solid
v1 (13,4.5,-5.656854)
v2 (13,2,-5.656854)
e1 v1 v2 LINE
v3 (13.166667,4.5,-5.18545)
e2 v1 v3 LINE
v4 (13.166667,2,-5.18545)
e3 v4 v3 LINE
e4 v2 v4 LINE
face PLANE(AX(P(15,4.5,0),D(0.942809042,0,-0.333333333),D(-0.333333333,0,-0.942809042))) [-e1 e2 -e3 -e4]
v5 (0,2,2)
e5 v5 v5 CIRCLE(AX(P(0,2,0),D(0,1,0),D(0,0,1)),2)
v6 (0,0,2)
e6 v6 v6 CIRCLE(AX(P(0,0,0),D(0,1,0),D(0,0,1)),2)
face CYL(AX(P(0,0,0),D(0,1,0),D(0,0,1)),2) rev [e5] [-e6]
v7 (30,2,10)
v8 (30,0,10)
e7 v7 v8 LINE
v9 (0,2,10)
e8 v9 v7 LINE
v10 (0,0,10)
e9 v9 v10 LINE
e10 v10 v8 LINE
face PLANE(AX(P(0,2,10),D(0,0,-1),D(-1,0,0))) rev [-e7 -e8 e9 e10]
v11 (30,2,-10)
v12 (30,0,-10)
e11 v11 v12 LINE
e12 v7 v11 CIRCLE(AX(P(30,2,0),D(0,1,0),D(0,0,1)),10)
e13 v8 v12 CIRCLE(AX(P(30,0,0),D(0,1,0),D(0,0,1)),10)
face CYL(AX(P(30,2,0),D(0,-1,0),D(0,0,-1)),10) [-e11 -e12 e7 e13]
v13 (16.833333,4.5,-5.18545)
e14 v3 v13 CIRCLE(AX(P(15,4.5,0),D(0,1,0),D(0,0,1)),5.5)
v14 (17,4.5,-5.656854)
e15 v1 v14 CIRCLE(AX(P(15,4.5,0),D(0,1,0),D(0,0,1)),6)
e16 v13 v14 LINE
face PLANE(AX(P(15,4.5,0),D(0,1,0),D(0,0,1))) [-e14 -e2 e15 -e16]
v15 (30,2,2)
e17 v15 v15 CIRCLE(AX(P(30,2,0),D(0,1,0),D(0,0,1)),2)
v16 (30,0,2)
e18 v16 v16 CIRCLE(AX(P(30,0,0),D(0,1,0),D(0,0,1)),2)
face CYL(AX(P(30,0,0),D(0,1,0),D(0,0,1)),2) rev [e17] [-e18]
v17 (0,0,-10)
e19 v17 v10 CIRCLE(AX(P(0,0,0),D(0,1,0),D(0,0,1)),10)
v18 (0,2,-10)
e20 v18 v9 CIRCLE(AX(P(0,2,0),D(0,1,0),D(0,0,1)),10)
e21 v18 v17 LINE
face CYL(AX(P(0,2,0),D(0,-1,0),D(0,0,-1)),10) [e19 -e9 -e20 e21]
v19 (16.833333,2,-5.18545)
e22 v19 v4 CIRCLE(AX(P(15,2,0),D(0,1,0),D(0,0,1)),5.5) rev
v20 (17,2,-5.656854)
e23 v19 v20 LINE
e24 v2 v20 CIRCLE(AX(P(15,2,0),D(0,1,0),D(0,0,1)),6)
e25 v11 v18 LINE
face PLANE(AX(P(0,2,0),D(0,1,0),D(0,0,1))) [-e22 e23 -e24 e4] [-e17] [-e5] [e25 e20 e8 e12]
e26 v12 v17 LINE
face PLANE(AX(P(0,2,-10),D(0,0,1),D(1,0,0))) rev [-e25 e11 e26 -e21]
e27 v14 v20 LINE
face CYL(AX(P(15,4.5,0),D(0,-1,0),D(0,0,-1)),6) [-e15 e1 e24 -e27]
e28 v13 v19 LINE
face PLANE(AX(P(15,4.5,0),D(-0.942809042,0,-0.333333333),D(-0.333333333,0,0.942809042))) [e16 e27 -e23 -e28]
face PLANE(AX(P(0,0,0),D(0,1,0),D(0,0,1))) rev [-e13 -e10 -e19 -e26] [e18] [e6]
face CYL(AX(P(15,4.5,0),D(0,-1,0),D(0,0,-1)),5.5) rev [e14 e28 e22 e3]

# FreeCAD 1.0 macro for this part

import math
import FreeCAD as App
import Part
import Sketcher
Q = App.Units.Quantity

doc = App.newDocument("Part")
params = doc.addObject("Spreadsheet::Sheet", "Params")
for row, (alias, value) in enumerate([
    ("sketch1_radius", "10 mm"),
    ("sketch1_width", "30 mm"),
    ("pad1_length", "2 mm"),
    ("sketch2_diameter", "4 mm"),
    ("pocket1_length", "2 mm"),
    ("sketch3_diameter", "12 mm"),
    ("sketch3_diameter2", "11 mm"),
    ("pad2_length", "2.5 mm"),
    ("sketch4_radius", "6 mm"),
    ("pocket2_length", "2.5 mm"),
], start=1):
    params.set(f"A{row}", alias)
    params.set(f"B{row}", "=" + value)
    params.setAlias(f"B{row}", alias)

body = doc.addObject("PartDesign::Body", "Body")

# Sketch on XZ plane
sketch1 = doc.addObject("Sketcher::SketchObject", "Sketch")
body.addObject(sketch1)
sketch1.AttachmentSupport = (doc.XZ_Plane, [""])
sketch1.MapMode = "FlatFace"
sketch1.addGeometry(Part.LineSegment(App.Vector(30, -10, 0), App.Vector(0, -10, 0)), False)
sketch1.addGeometry(Part.ArcOfCircle(Part.Circle(App.Vector(0, 0, 0), App.Vector(0, 0, 1), 10), math.radians(90), math.radians(270)), False)
sketch1.addGeometry(Part.LineSegment(App.Vector(0, 10, 0), App.Vector(30, 10, 0)), False)
sketch1.addGeometry(Part.ArcOfCircle(Part.Circle(App.Vector(30, 0, 0), App.Vector(0, 0, 1), 10), math.radians(-90), math.radians(90)), False)
sketch1.addConstraint(Sketcher.Constraint("Tangent", 0, 2, 1, 2))
sketch1.addConstraint(Sketcher.Constraint("Tangent", 1, 1, 2, 1))
sketch1.addConstraint(Sketcher.Constraint("Tangent", 2, 2, 3, 2))
sketch1.addConstraint(Sketcher.Constraint("Tangent", 3, 1, 0, 1))
sketch1.addConstraint(Sketcher.Constraint("Horizontal", 0))
sketch1.addConstraint(Sketcher.Constraint("Horizontal", 2))
sketch1.addConstraint(Sketcher.Constraint("Coincident", 1, 3, -1, 1))
sketch1.addConstraint(Sketcher.Constraint("Radius", 1, Q("10 mm")))
sketch1.addConstraint(Sketcher.Constraint("DistanceX", 0, 2, 0, 1, Q("30 mm")))
sketch1.setExpression("Constraints[7]", "Params.sketch1_radius")
sketch1.setExpression("Constraints[8]", "Params.sketch1_width")
pad1 = doc.addObject("PartDesign::Pad", "Pad")
body.addObject(pad1)
pad1.Profile = sketch1
pad1.setExpression("Length", "Params.pad1_length")
pad1.Reversed = True

# Sketch on XZ plane
sketch2 = doc.addObject("Sketcher::SketchObject", "Sketch001")
body.addObject(sketch2)
sketch2.AttachmentSupport = (doc.XZ_Plane, [""])
sketch2.MapMode = "FlatFace"
sketch2.AttachmentOffset = App.Placement(App.Vector(0, 0, -2), App.Rotation())
sketch2.addGeometry(Part.Circle(App.Vector(0, 0, 0), App.Vector(0, 0, 1), 2), False)
sketch2.addGeometry(Part.Circle(App.Vector(30, 0, 0), App.Vector(0, 0, 1), 2), False)
sketch2.addConstraint(Sketcher.Constraint("Coincident", 0, 3, -1, 1))
sketch2.addConstraint(Sketcher.Constraint("Equal", 0, 1))
sketch2.addConstraint(Sketcher.Constraint("PointOnObject", 1, 3, -1))
sketch2.addConstraint(Sketcher.Constraint("Diameter", 0, Q("4 mm")))
sketch2.addConstraint(Sketcher.Constraint("DistanceX", -1, 1, 1, 3, Q("30 mm")))
sketch2.setExpression("Constraints[3]", "Params.sketch2_diameter")
pocket1 = doc.addObject("PartDesign::Pocket", "Pocket")
body.addObject(pocket1)
pocket1.Profile = sketch2
pocket1.setExpression("Length", "Params.pocket1_length")
pocket1.Reversed = True

# Sketch on XZ plane
sketch3 = doc.addObject("Sketcher::SketchObject", "Sketch002")
body.addObject(sketch3)
sketch3.AttachmentSupport = (doc.XZ_Plane, [""])
sketch3.MapMode = "FlatFace"
sketch3.AttachmentOffset = App.Placement(App.Vector(0, 0, -2), App.Rotation())
sketch3.addGeometry(Part.Circle(App.Vector(15, 0, 0), App.Vector(0, 0, 1), 6), False)
sketch3.addGeometry(Part.Circle(App.Vector(15, 0, 0), App.Vector(0, 0, 1), 5.5), False)
sketch3.addConstraint(Sketcher.Constraint("Coincident", 1, 3, 0, 3))
sketch3.addConstraint(Sketcher.Constraint("PointOnObject", 0, 3, -1))
sketch3.addConstraint(Sketcher.Constraint("Diameter", 0, Q("12 mm")))
sketch3.addConstraint(Sketcher.Constraint("Diameter", 1, Q("11 mm")))
sketch3.addConstraint(Sketcher.Constraint("DistanceX", -1, 1, 0, 3, Q("15 mm")))
sketch3.setExpression("Constraints[2]", "Params.sketch3_diameter")
sketch3.setExpression("Constraints[3]", "Params.sketch3_diameter2")
pad2 = doc.addObject("PartDesign::Pad", "Pad001")
body.addObject(pad2)
pad2.Profile = sketch3
pad2.setExpression("Length", "Params.pad2_length")
pad2.Reversed = True

# Sketch on XZ plane
sketch4 = doc.addObject("Sketcher::SketchObject", "Sketch003")
body.addObject(sketch4)
sketch4.AttachmentSupport = (doc.XZ_Plane, [""])
sketch4.MapMode = "FlatFace"
sketch4.AttachmentOffset = App.Placement(App.Vector(0, 0, -2), App.Rotation())
sketch4.addGeometry(Part.LineSegment(App.Vector(13, -5.656854, 0), App.Vector(15, 0, 0)), False)
sketch4.addGeometry(Part.LineSegment(App.Vector(15, 0, 0), App.Vector(17, -5.656854, 0)), False)
sketch4.addGeometry(Part.ArcOfCircle(Part.Circle(App.Vector(15, 0, 0), App.Vector(0, 0, 1), 6), math.radians(-109.471221), math.radians(-70.528779)), False)
sketch4.addConstraint(Sketcher.Constraint("Coincident", 0, 2, 1, 1))
sketch4.addConstraint(Sketcher.Constraint("Coincident", 1, 2, 2, 2))
sketch4.addConstraint(Sketcher.Constraint("Coincident", 2, 1, 0, 1))
sketch4.addConstraint(Sketcher.Constraint("Coincident", 0, 2, 2, 3))
sketch4.addConstraint(Sketcher.Constraint("PointOnObject", 2, 3, -1))
sketch4.addConstraint(Sketcher.Constraint("Horizontal", 1, 2, 2, 1))
sketch4.addConstraint(Sketcher.Constraint("Radius", 2, Q("6 mm")))
sketch4.addConstraint(Sketcher.Constraint("DistanceX", -1, 1, 2, 3, Q("15 mm")))
sketch4.addConstraint(Sketcher.Constraint("DistanceX", -1, 1, 1, 2, Q("17 mm")))
sketch4.setExpression("Constraints[6]", "Params.sketch4_radius")
pocket2 = doc.addObject("PartDesign::Pocket", "Pocket001")
body.addObject(pocket2)
pocket2.Profile = sketch4
pocket2.setExpression("Length", "Params.pocket2_length")

doc.recompute()
